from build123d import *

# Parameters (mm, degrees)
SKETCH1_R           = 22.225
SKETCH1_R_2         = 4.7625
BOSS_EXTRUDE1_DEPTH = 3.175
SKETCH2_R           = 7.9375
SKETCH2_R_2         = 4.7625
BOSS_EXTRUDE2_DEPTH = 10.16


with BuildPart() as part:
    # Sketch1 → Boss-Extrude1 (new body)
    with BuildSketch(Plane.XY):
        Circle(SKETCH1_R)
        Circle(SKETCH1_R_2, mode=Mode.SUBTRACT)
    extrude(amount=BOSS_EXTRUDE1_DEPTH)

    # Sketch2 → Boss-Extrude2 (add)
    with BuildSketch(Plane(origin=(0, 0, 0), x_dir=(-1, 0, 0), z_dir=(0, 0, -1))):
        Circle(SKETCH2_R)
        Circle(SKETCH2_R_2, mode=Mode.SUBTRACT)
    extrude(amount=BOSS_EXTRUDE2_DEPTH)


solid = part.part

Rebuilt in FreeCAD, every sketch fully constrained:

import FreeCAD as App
import Part
import Sketcher

V = App.Vector
Q = App.Units.Quantity

doc = App.newDocument("Part")
body = doc.addObject("PartDesign::Body", "Body")

sketch1 = doc.addObject("Sketcher::SketchObject", "Sketch")
body.addObject(sketch1)
sketch1.AttachmentSupport = (doc.XY_Plane, [""])
sketch1.MapMode = "FlatFace"
sketch1.addGeometry([
    Part.Circle(V(0, 0, 0), V(0, 0, 1), 22.2),
    Part.Circle(V(0, 0, 0), V(0, 0, 1), 4.8),
], False)
sketch1.addConstraint([
    Sketcher.Constraint("Coincident", 0, 3, -1, 1),
    Sketcher.Constraint("Coincident", 1, 3, -1, 1),
    Sketcher.Constraint("Diameter", 0, Q("1.75 in")),
    Sketcher.Constraint("Diameter", 1, Q("0.375 in")),
])
pad1 = doc.addObject("PartDesign::Pad", "Pad")
body.addObject(pad1)
pad1.Profile = sketch1
pad1.Length = Q("0.125 in")

sketch2 = doc.addObject("Sketcher::SketchObject", "Sketch001")
body.addObject(sketch2)
sketch2.AttachmentSupport = (doc.XY_Plane, [""])
sketch2.MapMode = "FlatFace"
sketch2.addGeometry([
    Part.Circle(V(0, 0, 0), V(0, 0, 1), 7.9),
    Part.Circle(V(0, 0, 0), V(0, 0, 1), 4.8),
], False)
sketch2.addConstraint([
    Sketcher.Constraint("Coincident", 0, 3, -1, 1),
    Sketcher.Constraint("Coincident", 1, 3, -1, 1),
    Sketcher.Constraint("Diameter", 0, Q("0.625 in")),
    Sketcher.Constraint("Diameter", 1, Q("0.375 in")),
])
pad2 = doc.addObject("PartDesign::Pad", "Pad001")
body.addObject(pad2)
pad2.Profile = sketch2
pad2.Length = Q("0.4 in")
pad2.Reversed = True

doc.recompute()
